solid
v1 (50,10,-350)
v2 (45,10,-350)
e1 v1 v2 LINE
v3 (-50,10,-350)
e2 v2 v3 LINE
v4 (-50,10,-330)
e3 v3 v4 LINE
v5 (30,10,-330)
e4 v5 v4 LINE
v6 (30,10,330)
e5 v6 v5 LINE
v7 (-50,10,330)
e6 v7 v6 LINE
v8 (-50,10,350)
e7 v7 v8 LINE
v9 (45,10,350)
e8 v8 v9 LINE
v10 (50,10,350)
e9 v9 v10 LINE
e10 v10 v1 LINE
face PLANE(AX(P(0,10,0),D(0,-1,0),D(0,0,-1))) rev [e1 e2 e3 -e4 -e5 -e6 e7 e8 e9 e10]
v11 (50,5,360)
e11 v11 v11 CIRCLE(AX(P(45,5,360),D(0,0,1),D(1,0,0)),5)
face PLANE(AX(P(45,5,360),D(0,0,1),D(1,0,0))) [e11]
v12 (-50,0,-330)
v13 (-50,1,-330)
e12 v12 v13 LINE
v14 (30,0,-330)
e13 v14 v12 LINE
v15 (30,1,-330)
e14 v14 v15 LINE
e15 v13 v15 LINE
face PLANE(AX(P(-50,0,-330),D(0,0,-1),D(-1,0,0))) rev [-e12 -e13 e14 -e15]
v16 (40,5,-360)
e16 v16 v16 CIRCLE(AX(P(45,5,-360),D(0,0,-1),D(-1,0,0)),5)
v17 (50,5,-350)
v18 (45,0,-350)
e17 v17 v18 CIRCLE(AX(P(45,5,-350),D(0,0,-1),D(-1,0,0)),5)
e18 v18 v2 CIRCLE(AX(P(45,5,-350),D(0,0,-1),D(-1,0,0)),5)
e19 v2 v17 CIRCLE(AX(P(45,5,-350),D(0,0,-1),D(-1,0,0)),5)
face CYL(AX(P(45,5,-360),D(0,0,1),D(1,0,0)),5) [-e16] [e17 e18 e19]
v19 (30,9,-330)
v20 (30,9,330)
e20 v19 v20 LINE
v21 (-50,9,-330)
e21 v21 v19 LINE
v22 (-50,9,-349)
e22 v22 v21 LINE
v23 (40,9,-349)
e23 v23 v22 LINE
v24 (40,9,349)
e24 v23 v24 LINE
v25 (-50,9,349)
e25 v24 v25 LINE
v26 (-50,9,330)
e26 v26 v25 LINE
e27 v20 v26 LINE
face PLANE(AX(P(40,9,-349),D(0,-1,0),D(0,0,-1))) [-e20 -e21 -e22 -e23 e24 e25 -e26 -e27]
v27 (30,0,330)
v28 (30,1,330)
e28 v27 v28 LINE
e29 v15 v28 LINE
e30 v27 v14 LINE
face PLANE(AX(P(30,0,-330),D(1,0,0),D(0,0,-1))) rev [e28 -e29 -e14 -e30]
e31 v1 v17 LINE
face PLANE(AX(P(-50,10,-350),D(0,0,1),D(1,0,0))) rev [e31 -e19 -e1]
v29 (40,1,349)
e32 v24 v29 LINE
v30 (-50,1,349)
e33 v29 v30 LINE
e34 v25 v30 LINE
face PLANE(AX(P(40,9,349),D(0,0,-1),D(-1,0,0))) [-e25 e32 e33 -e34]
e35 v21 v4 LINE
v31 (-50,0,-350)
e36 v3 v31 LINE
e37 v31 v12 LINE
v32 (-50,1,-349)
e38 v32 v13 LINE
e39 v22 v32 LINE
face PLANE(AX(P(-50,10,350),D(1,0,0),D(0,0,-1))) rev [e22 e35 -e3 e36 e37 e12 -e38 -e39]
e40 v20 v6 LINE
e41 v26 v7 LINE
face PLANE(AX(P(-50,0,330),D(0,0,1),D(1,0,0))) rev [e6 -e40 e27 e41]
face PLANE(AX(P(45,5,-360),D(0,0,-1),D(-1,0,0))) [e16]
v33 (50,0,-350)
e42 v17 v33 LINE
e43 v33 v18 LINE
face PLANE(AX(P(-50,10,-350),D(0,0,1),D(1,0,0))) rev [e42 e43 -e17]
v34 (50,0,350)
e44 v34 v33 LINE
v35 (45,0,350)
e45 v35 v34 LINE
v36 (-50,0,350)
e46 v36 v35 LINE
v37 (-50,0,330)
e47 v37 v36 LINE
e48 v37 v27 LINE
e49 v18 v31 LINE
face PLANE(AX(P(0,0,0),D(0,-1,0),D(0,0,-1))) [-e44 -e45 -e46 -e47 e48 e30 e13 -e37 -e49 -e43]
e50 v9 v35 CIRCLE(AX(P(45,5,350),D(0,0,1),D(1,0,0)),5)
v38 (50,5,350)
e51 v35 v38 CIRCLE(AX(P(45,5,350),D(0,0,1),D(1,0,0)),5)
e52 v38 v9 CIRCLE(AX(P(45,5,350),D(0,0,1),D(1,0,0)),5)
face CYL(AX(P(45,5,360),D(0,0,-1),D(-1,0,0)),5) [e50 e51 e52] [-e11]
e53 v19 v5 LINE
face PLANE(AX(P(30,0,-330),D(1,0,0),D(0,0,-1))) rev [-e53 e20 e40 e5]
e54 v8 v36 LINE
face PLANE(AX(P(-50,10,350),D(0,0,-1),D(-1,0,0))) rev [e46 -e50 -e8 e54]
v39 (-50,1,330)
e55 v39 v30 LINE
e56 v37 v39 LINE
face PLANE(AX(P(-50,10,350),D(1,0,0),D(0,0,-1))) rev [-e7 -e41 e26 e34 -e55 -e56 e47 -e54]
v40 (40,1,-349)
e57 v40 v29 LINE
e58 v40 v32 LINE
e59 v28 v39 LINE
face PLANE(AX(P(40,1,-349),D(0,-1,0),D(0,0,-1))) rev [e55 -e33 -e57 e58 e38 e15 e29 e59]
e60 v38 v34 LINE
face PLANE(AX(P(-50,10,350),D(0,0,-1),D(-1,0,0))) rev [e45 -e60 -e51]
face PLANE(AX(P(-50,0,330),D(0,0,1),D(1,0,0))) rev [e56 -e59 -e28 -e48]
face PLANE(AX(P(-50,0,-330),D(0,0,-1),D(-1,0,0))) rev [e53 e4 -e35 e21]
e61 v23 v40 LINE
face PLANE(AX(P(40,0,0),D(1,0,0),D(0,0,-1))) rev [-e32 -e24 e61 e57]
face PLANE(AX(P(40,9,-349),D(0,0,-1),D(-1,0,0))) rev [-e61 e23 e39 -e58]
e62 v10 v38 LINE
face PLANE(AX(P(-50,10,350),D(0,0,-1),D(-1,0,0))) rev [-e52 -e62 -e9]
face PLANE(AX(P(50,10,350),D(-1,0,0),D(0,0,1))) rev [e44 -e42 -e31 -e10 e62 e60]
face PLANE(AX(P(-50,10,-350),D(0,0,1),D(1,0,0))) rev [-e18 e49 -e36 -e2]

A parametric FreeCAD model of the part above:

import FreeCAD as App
import Part
import Sketcher
from FreeCAD import Vector


def add_polygon(sketch, points):
    """Adds a closed chain of lines whose ends are joined by coincident constraints."""
    first, n = sketch.GeometryCount, len(points)
    for a, b in zip(points, points[1:] + points[:1]):
        sketch.addGeometry(Part.LineSegment(App.Vector(*a, 0), App.Vector(*b, 0)), False)
    for i in range(n):
        sketch.addConstraint(Sketcher.Constraint("Coincident", first + i, 2, first + (i + 1) % n, 1))

doc = App.newDocument("Part")
body = doc.addObject("PartDesign::Body", "Body")

sketch1 = body.newObject("Sketcher::SketchObject", "Sketch")
sketch1.AttachmentSupport = (doc.getObject("XZ_Plane"), [""])
sketch1.MapMode = "FlatFace"
add_polygon(sketch1, [(-50, -350), (-50, 350), (50, 350), (50, -350)])
sketch1.addConstraint([
    Sketcher.Constraint("Vertical", 0),
    Sketcher.Constraint("Horizontal", 1),
    Sketcher.Constraint("Vertical", 2),
    Sketcher.Constraint("Horizontal", 3),
    Sketcher.Constraint("Symmetric", 0, 2, 2, 2, -1, 1),
    Sketcher.Constraint("DistanceX", 1, 1, 1, 2, 100.0),
    Sketcher.Constraint("DistanceY", 0, 1, 0, 2, 700.0),
])
pad1 = body.newObject("PartDesign::Pad", "Pad")
pad1.Profile = sketch1
pad1.Length = 10
pad1.Reversed = True

sketch2 = body.newObject("Sketcher::SketchObject", "Sketch001")
sketch2.AttachmentSupport = (doc.getObject("XY_Plane"), [""])
sketch2.MapMode = "FlatFace"
sketch2.AttachmentOffset = App.Placement(Vector(0, 0, 350), App.Rotation())
sketch2.addGeometry(Part.Circle(Vector(45, 5, 0), Vector(0, 0, 1), 5), False)
sketch2.addConstraint([
    Sketcher.Constraint("Diameter", 0, 10.0),
    Sketcher.Constraint("DistanceX", -1, 1, 0, 3, 45.0),
    Sketcher.Constraint("DistanceY", -1, 1, 0, 3, 5.0),
])
pad2 = body.newObject("PartDesign::Pad", "Pad001")
pad2.Profile = sketch2
pad2.Length = 10

sketch3 = body.newObject("Sketcher::SketchObject", "Sketch002")
sketch3.AttachmentSupport = (doc.getObject("XY_Plane"), [""])
sketch3.MapMode = "FlatFace"
sketch3.AttachmentOffset = App.Placement(Vector(0, 0, -360), App.Rotation())
sketch3.addGeometry(Part.Circle(Vector(45, 5, 0), Vector(0, 0, 1), 5), False)
sketch3.addConstraint([
    Sketcher.Constraint("Diameter", 0, 10.0),
    Sketcher.Constraint("DistanceX", -1, 1, 0, 3, 45.0),
    Sketcher.Constraint("DistanceY", -1, 1, 0, 3, 5.0),
])
pad3 = body.newObject("PartDesign::Pad", "Pad002")
pad3.Profile = sketch3
pad3.Length = 10

sketch4 = body.newObject("Sketcher::SketchObject", "Sketch003")
sketch4.AttachmentSupport = (doc.getObject("YZ_Plane"), [""])
sketch4.MapMode = "FlatFace"
sketch4.AttachmentOffset = App.Placement(Vector(0, 0, -50), App.Rotation())
add_polygon(sketch4, [(9, -349), (1, -349), (1, 349), (9, 349)])
sketch4.addConstraint([
    Sketcher.Constraint("Horizontal", 0),
    Sketcher.Constraint("Vertical", 1),
    Sketcher.Constraint("Horizontal", 2),
    Sketcher.Constraint("Vertical", 3),
    Sketcher.Constraint("DistanceX", 0, 2, 0, 1, 8.0),
    Sketcher.Constraint("DistanceY", 1, 1, 1, 2, 698.0),
    Sketcher.Constraint("DistanceX", -1, 1, 0, 2, 1.0),
    Sketcher.Constraint("DistanceY", 0, 2, -1, 1, 349.0),
])
pocket1 = body.newObject("PartDesign::Pocket", "Pocket")
pocket1.Profile = sketch4
pocket1.Length = 90
pocket1.Reversed = True

sketch5 = body.newObject("Sketcher::SketchObject", "Sketch004")
sketch5.AttachmentSupport = (doc.getObject("XZ_Plane"), [""])
sketch5.MapMode = "FlatFace"
sketch5.AttachmentOffset = App.Placement(Vector(0, 0, -10), App.Rotation())
add_polygon(sketch5, [(-50, -330), (-50, 330), (30, 330), (30, -330)])
sketch5.addConstraint([
    Sketcher.Constraint("Vertical", 0),
    Sketcher.Constraint("Horizontal", 1),
    Sketcher.Constraint("Vertical", 2),
    Sketcher.Constraint("Horizontal", 3),
    Sketcher.Constraint("DistanceX", 1, 1, 1, 2, 80.0),
    Sketcher.Constraint("DistanceY", 0, 1, 0, 2, 660.0),
    Sketcher.Constraint("DistanceX", 0, 2, -1, 1, 50.0),
    Sketcher.Constraint("DistanceY", -1, 1, 0, 2, 330.0),
])
pocket2 = body.newObject("PartDesign::Pocket", "Pocket001")
pocket2.Profile = sketch5
pocket2.Length = 10
pocket2.Reversed = True

doc.recompute()
